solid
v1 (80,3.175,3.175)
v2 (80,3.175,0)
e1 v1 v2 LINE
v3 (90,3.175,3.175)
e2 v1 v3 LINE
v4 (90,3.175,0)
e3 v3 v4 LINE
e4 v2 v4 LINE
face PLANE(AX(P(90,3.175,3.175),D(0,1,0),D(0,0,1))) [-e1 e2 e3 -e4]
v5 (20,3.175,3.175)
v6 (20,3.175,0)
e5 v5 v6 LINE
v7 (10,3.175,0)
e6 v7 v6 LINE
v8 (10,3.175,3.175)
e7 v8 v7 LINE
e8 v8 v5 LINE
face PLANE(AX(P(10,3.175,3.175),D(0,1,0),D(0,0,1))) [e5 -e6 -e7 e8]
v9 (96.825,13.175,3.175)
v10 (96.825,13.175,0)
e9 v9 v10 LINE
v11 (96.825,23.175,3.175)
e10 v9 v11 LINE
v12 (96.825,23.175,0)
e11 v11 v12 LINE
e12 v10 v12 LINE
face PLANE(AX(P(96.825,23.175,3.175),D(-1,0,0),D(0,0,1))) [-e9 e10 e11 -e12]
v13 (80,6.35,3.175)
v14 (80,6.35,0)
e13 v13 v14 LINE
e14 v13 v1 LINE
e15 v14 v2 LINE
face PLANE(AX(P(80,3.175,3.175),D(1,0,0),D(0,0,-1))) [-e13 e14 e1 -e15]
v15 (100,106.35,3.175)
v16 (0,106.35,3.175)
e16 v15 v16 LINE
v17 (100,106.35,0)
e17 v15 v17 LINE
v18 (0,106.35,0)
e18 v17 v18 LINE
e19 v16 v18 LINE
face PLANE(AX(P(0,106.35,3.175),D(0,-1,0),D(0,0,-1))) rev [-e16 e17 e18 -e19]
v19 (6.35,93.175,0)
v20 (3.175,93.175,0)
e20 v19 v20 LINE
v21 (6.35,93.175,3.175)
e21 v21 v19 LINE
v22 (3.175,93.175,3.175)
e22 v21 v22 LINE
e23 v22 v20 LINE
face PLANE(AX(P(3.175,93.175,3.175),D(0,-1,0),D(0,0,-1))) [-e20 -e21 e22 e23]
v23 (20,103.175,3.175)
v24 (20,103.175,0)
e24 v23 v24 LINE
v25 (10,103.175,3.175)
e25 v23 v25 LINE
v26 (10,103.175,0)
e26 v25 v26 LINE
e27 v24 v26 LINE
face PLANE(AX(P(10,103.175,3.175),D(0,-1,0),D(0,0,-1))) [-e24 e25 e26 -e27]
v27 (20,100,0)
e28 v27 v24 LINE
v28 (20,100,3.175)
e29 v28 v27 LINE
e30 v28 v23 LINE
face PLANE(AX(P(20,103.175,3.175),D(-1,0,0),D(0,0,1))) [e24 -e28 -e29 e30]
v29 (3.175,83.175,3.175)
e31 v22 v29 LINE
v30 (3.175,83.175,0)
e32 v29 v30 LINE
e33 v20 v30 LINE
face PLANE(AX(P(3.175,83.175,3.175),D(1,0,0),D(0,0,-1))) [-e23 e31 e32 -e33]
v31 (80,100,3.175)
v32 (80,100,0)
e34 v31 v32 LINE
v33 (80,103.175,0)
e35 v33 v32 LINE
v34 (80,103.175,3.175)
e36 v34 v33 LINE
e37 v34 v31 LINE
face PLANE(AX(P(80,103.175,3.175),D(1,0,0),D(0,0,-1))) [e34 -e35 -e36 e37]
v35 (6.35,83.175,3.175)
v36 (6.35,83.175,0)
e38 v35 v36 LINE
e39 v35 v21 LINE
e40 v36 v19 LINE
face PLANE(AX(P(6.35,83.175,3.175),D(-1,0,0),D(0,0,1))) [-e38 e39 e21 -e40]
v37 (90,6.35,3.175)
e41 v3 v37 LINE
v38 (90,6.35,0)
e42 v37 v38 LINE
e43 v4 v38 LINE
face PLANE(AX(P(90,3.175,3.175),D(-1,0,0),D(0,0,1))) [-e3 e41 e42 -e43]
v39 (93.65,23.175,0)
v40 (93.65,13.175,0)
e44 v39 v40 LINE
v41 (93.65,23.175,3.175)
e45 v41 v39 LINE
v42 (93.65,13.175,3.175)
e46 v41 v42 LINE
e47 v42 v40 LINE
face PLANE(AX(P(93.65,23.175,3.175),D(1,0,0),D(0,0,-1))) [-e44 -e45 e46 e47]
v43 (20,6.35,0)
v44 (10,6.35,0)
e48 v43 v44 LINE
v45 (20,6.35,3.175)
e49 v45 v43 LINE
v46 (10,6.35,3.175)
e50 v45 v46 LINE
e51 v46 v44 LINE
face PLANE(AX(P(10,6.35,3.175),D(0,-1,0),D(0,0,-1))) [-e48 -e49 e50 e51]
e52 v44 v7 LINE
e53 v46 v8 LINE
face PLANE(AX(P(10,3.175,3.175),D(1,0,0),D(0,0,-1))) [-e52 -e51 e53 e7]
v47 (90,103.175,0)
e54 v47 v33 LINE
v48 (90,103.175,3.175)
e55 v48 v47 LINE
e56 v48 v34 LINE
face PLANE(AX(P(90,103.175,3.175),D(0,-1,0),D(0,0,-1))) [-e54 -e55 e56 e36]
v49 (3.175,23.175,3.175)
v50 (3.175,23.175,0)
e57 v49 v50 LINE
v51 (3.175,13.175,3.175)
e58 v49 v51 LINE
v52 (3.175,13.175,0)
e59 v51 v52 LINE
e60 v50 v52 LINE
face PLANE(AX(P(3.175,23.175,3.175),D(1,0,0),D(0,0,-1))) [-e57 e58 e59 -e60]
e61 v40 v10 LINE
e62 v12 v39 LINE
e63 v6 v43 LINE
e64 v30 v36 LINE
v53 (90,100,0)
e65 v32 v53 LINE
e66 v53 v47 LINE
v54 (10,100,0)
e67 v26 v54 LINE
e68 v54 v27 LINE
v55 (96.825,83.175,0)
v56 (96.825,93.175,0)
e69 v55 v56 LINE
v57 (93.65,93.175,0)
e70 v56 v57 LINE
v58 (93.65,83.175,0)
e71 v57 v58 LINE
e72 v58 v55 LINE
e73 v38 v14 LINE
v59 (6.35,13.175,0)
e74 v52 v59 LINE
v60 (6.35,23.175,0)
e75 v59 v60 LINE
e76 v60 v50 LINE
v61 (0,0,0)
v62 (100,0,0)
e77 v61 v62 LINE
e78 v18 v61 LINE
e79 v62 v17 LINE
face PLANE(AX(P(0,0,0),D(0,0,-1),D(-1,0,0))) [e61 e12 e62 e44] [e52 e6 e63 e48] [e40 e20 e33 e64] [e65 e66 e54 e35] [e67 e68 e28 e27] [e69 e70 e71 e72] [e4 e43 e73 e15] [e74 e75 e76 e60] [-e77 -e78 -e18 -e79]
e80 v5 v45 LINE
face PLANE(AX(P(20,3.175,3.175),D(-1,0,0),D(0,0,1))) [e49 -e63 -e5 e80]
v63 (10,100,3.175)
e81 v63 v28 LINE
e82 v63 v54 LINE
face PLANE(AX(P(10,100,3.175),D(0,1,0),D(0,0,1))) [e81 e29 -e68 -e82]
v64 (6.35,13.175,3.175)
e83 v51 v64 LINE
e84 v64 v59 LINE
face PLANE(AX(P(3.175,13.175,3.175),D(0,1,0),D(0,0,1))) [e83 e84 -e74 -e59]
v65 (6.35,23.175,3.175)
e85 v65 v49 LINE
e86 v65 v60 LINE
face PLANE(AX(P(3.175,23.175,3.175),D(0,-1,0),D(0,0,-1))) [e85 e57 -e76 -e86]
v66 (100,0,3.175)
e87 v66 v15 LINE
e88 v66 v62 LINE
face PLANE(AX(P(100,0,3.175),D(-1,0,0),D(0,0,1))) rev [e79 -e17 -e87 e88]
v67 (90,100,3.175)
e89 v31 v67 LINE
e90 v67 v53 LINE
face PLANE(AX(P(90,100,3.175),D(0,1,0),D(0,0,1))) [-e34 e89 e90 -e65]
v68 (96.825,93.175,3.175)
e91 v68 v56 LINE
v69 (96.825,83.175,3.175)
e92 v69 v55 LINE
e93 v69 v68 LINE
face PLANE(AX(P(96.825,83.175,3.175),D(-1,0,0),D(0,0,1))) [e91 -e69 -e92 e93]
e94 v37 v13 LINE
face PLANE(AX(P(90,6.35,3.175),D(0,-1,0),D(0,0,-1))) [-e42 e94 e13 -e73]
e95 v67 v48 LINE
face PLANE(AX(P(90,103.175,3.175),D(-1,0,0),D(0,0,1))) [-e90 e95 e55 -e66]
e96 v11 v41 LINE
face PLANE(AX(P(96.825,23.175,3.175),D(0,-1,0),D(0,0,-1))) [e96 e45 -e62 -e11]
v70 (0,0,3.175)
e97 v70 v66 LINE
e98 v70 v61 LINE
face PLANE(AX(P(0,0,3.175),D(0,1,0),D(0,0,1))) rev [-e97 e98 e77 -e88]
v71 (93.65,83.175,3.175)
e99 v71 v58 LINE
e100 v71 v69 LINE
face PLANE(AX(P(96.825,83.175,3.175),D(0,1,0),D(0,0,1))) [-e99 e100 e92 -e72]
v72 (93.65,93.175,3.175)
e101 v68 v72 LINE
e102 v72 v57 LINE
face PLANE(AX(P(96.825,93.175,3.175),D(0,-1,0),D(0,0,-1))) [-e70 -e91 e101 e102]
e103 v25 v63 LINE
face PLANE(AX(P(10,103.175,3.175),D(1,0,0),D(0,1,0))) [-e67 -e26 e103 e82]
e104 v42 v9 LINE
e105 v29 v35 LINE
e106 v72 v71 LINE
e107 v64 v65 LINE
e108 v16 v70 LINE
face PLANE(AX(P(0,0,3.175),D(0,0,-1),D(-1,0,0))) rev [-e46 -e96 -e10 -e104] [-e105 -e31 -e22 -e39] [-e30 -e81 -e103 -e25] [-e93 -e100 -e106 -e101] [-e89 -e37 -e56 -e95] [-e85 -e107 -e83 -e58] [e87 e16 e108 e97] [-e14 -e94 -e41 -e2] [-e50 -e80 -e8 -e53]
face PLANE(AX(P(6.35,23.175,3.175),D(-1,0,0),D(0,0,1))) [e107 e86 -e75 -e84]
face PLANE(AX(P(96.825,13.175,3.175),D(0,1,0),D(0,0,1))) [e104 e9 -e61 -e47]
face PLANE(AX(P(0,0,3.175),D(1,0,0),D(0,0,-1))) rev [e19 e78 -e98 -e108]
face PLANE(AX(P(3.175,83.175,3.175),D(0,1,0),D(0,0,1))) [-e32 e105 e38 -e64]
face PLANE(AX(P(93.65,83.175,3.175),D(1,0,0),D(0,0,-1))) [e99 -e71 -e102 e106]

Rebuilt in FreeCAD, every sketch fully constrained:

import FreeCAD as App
import Part
import Sketcher

V = App.Vector
Q = App.Units.Quantity

doc = App.newDocument("Part")
body = doc.addObject("PartDesign::Body", "Body")

sketch1 = body.newObject("Sketcher::SketchObject", "Sketch")
sketch1.AttachmentSupport = (doc.getObject("XY_Plane"), [""])
sketch1.MapMode = "FlatFace"
sketch1.addGeometry([
    Part.LineSegment(V(0, 106.3, 0), V(0, 0, 0)),
    Part.LineSegment(V(0, 0, 0), V(100, 0, 0)),
    Part.LineSegment(V(100, 0, 0), V(100, 106.3, 0)),
    Part.LineSegment(V(100, 106.3, 0), V(0, 106.3, 0)),
    Part.LineSegment(V(20, 3.2, 0), V(10, 3.2, 0)),
    Part.LineSegment(V(10, 3.2, 0), V(10, 6.3, 0)),
    Part.LineSegment(V(10, 6.3, 0), V(20, 6.3, 0)),
    Part.LineSegment(V(20, 6.3, 0), V(20, 3.2, 0)),
    Part.LineSegment(V(6.3, 13.2, 0), V(3.2, 13.2, 0)),
    Part.LineSegment(V(3.2, 13.2, 0), V(3.2, 23.2, 0)),
    Part.LineSegment(V(3.2, 23.2, 0), V(6.3, 23.2, 0)),
    Part.LineSegment(V(6.3, 23.2, 0), V(6.3, 13.2, 0)),
    Part.LineSegment(V(90, 3.2, 0), V(80, 3.2, 0)),
    Part.LineSegment(V(80, 3.2, 0), V(80, 6.3, 0)),
    Part.LineSegment(V(80, 6.3, 0), V(90, 6.3, 0)),
    Part.LineSegment(V(90, 6.3, 0), V(90, 3.2, 0)),
    Part.LineSegment(V(96.8, 13.2, 0), V(93.7, 13.2, 0)),
    Part.LineSegment(V(93.7, 13.2, 0), V(93.7, 23.2, 0)),
    Part.LineSegment(V(93.7, 23.2, 0), V(96.8, 23.2, 0)),
    Part.LineSegment(V(96.8, 23.2, 0), V(96.8, 13.2, 0)),
    Part.LineSegment(V(6.3, 83.2, 0), V(3.2, 83.2, 0)),
    Part.LineSegment(V(3.2, 83.2, 0), V(3.2, 93.2, 0)),
    Part.LineSegment(V(3.2, 93.2, 0), V(6.3, 93.2, 0)),
    Part.LineSegment(V(6.3, 93.2, 0), V(6.3, 83.2, 0)),
    Part.LineSegment(V(20, 100, 0), V(10, 100, 0)),
    Part.LineSegment(V(10, 100, 0), V(10, 103.2, 0)),
    Part.LineSegment(V(10, 103.2, 0), V(20, 103.2, 0)),
    Part.LineSegment(V(20, 103.2, 0), V(20, 100, 0)),
    Part.LineSegment(V(96.8, 83.2, 0), V(93.7, 83.2, 0)),
    Part.LineSegment(V(93.7, 83.2, 0), V(93.7, 93.2, 0)),
    Part.LineSegment(V(93.7, 93.2, 0), V(96.8, 93.2, 0)),
    Part.LineSegment(V(96.8, 93.2, 0), V(96.8, 83.2, 0)),
    Part.LineSegment(V(90, 100, 0), V(80, 100, 0)),
    Part.LineSegment(V(80, 100, 0), V(80, 103.2, 0)),
    Part.LineSegment(V(80, 103.2, 0), V(90, 103.2, 0)),
    Part.LineSegment(V(90, 103.2, 0), V(90, 100, 0)),
], False)
sketch1.addConstraint([
    Sketcher.Constraint("Coincident", 0, 2, 1, 1),
    Sketcher.Constraint("Coincident", 1, 2, 2, 1),
    Sketcher.Constraint("Coincident", 2, 2, 3, 1),
    Sketcher.Constraint("Coincident", 3, 2, 0, 1),
    Sketcher.Constraint("Coincident", 4, 2, 5, 1),
    Sketcher.Constraint("Coincident", 5, 2, 6, 1),
    Sketcher.Constraint("Coincident", 6, 2, 7, 1),
    Sketcher.Constraint("Coincident", 7, 2, 4, 1),
    Sketcher.Constraint("Coincident", 8, 2, 9, 1),
    Sketcher.Constraint("Coincident", 9, 2, 10, 1),
    Sketcher.Constraint("Coincident", 10, 2, 11, 1),
    Sketcher.Constraint("Coincident", 11, 2, 8, 1),
    Sketcher.Constraint("Coincident", 12, 2, 13, 1),
    Sketcher.Constraint("Coincident", 13, 2, 14, 1),
    Sketcher.Constraint("Coincident", 14, 2, 15, 1),
    Sketcher.Constraint("Coincident", 15, 2, 12, 1),
    Sketcher.Constraint("Coincident", 16, 2, 17, 1),
    Sketcher.Constraint("Coincident", 17, 2, 18, 1),
    Sketcher.Constraint("Coincident", 18, 2, 19, 1),
    Sketcher.Constraint("Coincident", 19, 2, 16, 1),
    Sketcher.Constraint("Coincident", 20, 2, 21, 1),
    Sketcher.Constraint("Coincident", 21, 2, 22, 1),
    Sketcher.Constraint("Coincident", 22, 2, 23, 1),
    Sketcher.Constraint("Coincident", 23, 2, 20, 1),
    Sketcher.Constraint("Coincident", 24, 2, 25, 1),
    Sketcher.Constraint("Coincident", 25, 2, 26, 1),
    Sketcher.Constraint("Coincident", 26, 2, 27, 1),
    Sketcher.Constraint("Coincident", 27, 2, 24, 1),
    Sketcher.Constraint("Coincident", 28, 2, 29, 1),
    Sketcher.Constraint("Coincident", 29, 2, 30, 1),
    Sketcher.Constraint("Coincident", 30, 2, 31, 1),
    Sketcher.Constraint("Coincident", 31, 2, 28, 1),
    Sketcher.Constraint("Coincident", 32, 2, 33, 1),
    Sketcher.Constraint("Coincident", 33, 2, 34, 1),
    Sketcher.Constraint("Coincident", 34, 2, 35, 1),
    Sketcher.Constraint("Coincident", 35, 2, 32, 1),
    Sketcher.Constraint("Vertical", 0),
    Sketcher.Constraint("Horizontal", 1),
    Sketcher.Constraint("Vertical", 2),
    Sketcher.Constraint("Horizontal", 3),
    Sketcher.Constraint("Horizontal", 4),
    Sketcher.Constraint("Vertical", 5),
    Sketcher.Constraint("Horizontal", 6),
    Sketcher.Constraint("Vertical", 7),
    Sketcher.Constraint("Horizontal", 8),
    Sketcher.Constraint("Vertical", 9),
    Sketcher.Constraint("Horizontal", 10),
    Sketcher.Constraint("Vertical", 11),
    Sketcher.Constraint("Horizontal", 12),
    Sketcher.Constraint("Vertical", 13),
    Sketcher.Constraint("Horizontal", 14),
    Sketcher.Constraint("Vertical", 15),
    Sketcher.Constraint("Horizontal", 16),
    Sketcher.Constraint("Vertical", 17),
    Sketcher.Constraint("Horizontal", 18),
    Sketcher.Constraint("Vertical", 19),
    Sketcher.Constraint("Horizontal", 20),
    Sketcher.Constraint("Vertical", 21),
    Sketcher.Constraint("Horizontal", 22),
    Sketcher.Constraint("Vertical", 23),
    Sketcher.Constraint("Horizontal", 24),
    Sketcher.Constraint("Vertical", 25),
    Sketcher.Constraint("Horizontal", 26),
    Sketcher.Constraint("Vertical", 27),
    Sketcher.Constraint("Horizontal", 28),
    Sketcher.Constraint("Vertical", 29),
    Sketcher.Constraint("Horizontal", 30),
    Sketcher.Constraint("Vertical", 31),
    Sketcher.Constraint("Horizontal", 32),
    Sketcher.Constraint("Vertical", 33),
    Sketcher.Constraint("Horizontal", 34),
    Sketcher.Constraint("Vertical", 35),
    Sketcher.Constraint("Coincident", 0, 2, -1, 1),
    Sketcher.Constraint("Horizontal", 7, 2, 12, 2),
    Sketcher.Constraint("Horizontal", 6, 2, 13, 2),
    Sketcher.Constraint("Horizontal", 11, 2, 16, 2),
    Sketcher.Constraint("Horizontal", 10, 2, 17, 2),
    Sketcher.Constraint("Horizontal", 23, 2, 28, 2),
    Sketcher.Constraint("Horizontal", 22, 2, 29, 2),
    Sketcher.Constraint("Horizontal", 27, 2, 32, 2),
    Sketcher.Constraint("Horizontal", 26, 2, 33, 2),
    Sketcher.Constraint("Vertical", 9, 2, 20, 2),
    Sketcher.Constraint("Vertical", 11, 2, 22, 2),
    Sketcher.Constraint("Vertical", 5, 2, 24, 2),
    Sketcher.Constraint("Vertical", 7, 2, 26, 2),
    Sketcher.Constraint("Vertical", 17, 2, 28, 2),
    Sketcher.Constraint("Vertical", 19, 2, 30, 2),
    Sketcher.Constraint("Vertical", 13, 2, 32, 2),
    Sketcher.Constraint("Vertical", 15, 2, 34, 2),
    Sketcher.Constraint("Equal", 6, 12),
    Sketcher.Constraint("Equal", 10, 16),
    Sketcher.Constraint("Equal", 30, 5),
    Sketcher.Constraint("Equal", 34, 9),
    Sketcher.Constraint("Equal", 19, 21),
    Sketcher.Constraint("Equal", 15, 25),
    Sketcher.Constraint("DistanceX", 1, 1, 1, 2, Q("100 mm")),
    Sketcher.Constraint("DistanceX", 4, 2, 4, 1, Q("10 mm")),
    Sketcher.Constraint("DistanceX", -1, 1, 4, 2, Q("10 mm")),
    Sketcher.Constraint("DistanceX", -1, 1, 12, 2, Q("80 mm")),
    Sketcher.Constraint("DistanceY", -1, 1, 24, 2, Q("100 mm")),
    Sketcher.Constraint("DistanceY", 5, 2, 3, 2, Q("100 mm")),
    Sketcher.Constraint("DistanceY", 4, 2, 8, 2, Q("10 mm")),
    Sketcher.Constraint("DistanceY", 9, 2, 20, 2, Q("60 mm")),
    Sketcher.Constraint("DistanceY", 22, 2, 25, 2, Q("10 mm")),
    Sketcher.Constraint("DistanceY", 0, 2, 0, 1, Q("106.35 mm")),
    Sketcher.Constraint("DistanceX", -1, 1, 10, 2, Q("6.35 mm")),
    Sketcher.Constraint("DistanceX", -1, 1, 16, 2, Q("93.65 mm")),
])
pad1 = body.newObject("PartDesign::Pad", "Pad")
pad1.Profile = sketch1
pad1.Length = 3.175

doc.recompute()
